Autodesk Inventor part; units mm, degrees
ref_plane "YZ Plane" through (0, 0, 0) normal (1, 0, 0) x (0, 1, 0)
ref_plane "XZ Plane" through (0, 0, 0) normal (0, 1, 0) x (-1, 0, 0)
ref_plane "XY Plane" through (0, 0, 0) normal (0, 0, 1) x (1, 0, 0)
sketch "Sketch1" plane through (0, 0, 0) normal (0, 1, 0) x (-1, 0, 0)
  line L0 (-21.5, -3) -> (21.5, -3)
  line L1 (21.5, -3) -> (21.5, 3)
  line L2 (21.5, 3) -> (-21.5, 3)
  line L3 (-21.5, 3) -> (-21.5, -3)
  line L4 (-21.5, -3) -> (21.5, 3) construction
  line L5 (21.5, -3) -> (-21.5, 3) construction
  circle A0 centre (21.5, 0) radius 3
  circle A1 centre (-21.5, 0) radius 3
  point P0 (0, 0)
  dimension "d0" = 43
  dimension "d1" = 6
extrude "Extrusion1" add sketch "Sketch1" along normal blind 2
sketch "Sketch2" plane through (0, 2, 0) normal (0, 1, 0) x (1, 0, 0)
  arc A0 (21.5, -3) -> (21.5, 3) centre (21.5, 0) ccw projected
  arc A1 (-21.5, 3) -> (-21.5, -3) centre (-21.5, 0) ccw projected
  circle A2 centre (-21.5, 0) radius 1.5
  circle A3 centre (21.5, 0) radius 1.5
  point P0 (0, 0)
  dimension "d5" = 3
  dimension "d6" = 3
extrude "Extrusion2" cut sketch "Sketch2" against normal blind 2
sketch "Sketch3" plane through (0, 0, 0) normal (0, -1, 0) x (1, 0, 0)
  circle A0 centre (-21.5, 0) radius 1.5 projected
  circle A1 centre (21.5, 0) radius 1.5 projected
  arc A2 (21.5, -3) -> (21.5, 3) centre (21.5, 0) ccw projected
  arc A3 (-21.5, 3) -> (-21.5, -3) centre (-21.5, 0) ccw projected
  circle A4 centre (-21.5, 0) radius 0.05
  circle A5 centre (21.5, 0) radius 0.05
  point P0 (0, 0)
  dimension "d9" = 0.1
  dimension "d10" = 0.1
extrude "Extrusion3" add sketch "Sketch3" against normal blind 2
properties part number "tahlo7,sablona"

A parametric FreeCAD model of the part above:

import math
import FreeCAD as App
import Part
import Sketcher

V = App.Vector
Q = App.Units.Quantity

doc = App.newDocument("Part")
body = doc.addObject("PartDesign::Body", "Body")

sketch1 = doc.addObject("Sketcher::SketchObject", "Sketch")
body.addObject(sketch1)
sketch1.AttachmentSupport = (doc.XZ_Plane, [""])
sketch1.MapMode = "FlatFace"
sketch1.addGeometry([
    Part.LineSegment(V(-21.5, 3, 0), V(21.5, 3, 0)),
    Part.ArcOfCircle(Part.Circle(V(21.5, 0, 0), V(0, 0, 1), 3), math.radians(-90), math.radians(90)),
    Part.LineSegment(V(21.5, -3, 0), V(-21.5, -3, 0)),
    Part.ArcOfCircle(Part.Circle(V(-21.5, 0, 0), V(0, 0, 1), 3), math.radians(90), math.radians(270)),
], False)
sketch1.addConstraint([
    Sketcher.Constraint("Tangent", 0, 2, 1, 2),
    Sketcher.Constraint("Tangent", 1, 1, 2, 1),
    Sketcher.Constraint("Tangent", 2, 2, 3, 2),
    Sketcher.Constraint("Tangent", 3, 1, 0, 1),
    Sketcher.Constraint("Horizontal", 0),
    Sketcher.Constraint("Horizontal", 2),
    Sketcher.Constraint("Symmetric", 1, 3, 3, 3, -1, 1),
    Sketcher.Constraint("Radius", 1, Q("3 mm")),
    Sketcher.Constraint("DistanceX", 0, 1, 0, 2, Q("43 mm")),
])
pad1 = doc.addObject("PartDesign::Pad", "Pad")
body.addObject(pad1)
pad1.Profile = sketch1
pad1.Length = 2
pad1.Reversed = True

sketch2 = doc.addObject("Sketcher::SketchObject", "Sketch001")
body.addObject(sketch2)
sketch2.AttachmentSupport = (doc.XZ_Plane, [""])
sketch2.MapMode = "FlatFace"
sketch2.AttachmentOffset = App.Placement(V(0, 0, -2), App.Rotation())
sketch2.addGeometry([
    Part.Circle(V(-21.5, 0, 0), V(0, 0, 1), 1.5),
    Part.Circle(V(21.5, 0, 0), V(0, 0, 1), 1.5),
], False)
sketch2.addConstraint([
    Sketcher.Constraint("Equal", 0, 1),
    Sketcher.Constraint("Symmetric", 0, 3, 1, 3, -1, 1),
    Sketcher.Constraint("PointOnObject", 0, 3, -1),
    Sketcher.Constraint("Diameter", 0, Q("3 mm")),
    Sketcher.Constraint("DistanceX", 0, 3, 1, 3, Q("43 mm")),
])
pocket1 = doc.addObject("PartDesign::Pocket", "Pocket")
body.addObject(pocket1)
pocket1.Profile = sketch2
pocket1.Length = 2
pocket1.Reversed = True

sketch3 = doc.addObject("Sketcher::SketchObject", "Sketch002")
body.addObject(sketch3)
sketch3.AttachmentSupport = (doc.XZ_Plane, [""])
sketch3.MapMode = "FlatFace"
sketch3.addGeometry([
    Part.Circle(V(-21.5, 0, 0), V(0, 0, 1), 1.5),
    Part.Circle(V(-21.5, 0, 0), V(0, 0, 1), 0.05),
    Part.Circle(V(21.5, 0, 0), V(0, 0, 1), 1.5),
    Part.Circle(V(21.5, 0, 0), V(0, 0, 1), 0.05),
], False)
sketch3.addConstraint([
    Sketcher.Constraint("Coincident", 1, 3, 0, 3),
    Sketcher.Constraint("Coincident", 3, 3, 2, 3),
    Sketcher.Constraint("Equal", 0, 2),
    Sketcher.Constraint("Equal", 1, 3),
    Sketcher.Constraint("Symmetric", 0, 3, 2, 3, -1, 1),
    Sketcher.Constraint("PointOnObject", 0, 3, -1),
    Sketcher.Constraint("Diameter", 1, Q("0.1 mm")),
    Sketcher.Constraint("Diameter", 0, Q("3 mm")),
    Sketcher.Constraint("DistanceX", 0, 3, 2, 3, Q("43 mm")),
])
pad2 = doc.addObject("PartDesign::Pad", "Pad001")
body.addObject(pad2)
pad2.Profile = sketch3
pad2.Length = 2
pad2.Reversed = True

doc.recompute()
